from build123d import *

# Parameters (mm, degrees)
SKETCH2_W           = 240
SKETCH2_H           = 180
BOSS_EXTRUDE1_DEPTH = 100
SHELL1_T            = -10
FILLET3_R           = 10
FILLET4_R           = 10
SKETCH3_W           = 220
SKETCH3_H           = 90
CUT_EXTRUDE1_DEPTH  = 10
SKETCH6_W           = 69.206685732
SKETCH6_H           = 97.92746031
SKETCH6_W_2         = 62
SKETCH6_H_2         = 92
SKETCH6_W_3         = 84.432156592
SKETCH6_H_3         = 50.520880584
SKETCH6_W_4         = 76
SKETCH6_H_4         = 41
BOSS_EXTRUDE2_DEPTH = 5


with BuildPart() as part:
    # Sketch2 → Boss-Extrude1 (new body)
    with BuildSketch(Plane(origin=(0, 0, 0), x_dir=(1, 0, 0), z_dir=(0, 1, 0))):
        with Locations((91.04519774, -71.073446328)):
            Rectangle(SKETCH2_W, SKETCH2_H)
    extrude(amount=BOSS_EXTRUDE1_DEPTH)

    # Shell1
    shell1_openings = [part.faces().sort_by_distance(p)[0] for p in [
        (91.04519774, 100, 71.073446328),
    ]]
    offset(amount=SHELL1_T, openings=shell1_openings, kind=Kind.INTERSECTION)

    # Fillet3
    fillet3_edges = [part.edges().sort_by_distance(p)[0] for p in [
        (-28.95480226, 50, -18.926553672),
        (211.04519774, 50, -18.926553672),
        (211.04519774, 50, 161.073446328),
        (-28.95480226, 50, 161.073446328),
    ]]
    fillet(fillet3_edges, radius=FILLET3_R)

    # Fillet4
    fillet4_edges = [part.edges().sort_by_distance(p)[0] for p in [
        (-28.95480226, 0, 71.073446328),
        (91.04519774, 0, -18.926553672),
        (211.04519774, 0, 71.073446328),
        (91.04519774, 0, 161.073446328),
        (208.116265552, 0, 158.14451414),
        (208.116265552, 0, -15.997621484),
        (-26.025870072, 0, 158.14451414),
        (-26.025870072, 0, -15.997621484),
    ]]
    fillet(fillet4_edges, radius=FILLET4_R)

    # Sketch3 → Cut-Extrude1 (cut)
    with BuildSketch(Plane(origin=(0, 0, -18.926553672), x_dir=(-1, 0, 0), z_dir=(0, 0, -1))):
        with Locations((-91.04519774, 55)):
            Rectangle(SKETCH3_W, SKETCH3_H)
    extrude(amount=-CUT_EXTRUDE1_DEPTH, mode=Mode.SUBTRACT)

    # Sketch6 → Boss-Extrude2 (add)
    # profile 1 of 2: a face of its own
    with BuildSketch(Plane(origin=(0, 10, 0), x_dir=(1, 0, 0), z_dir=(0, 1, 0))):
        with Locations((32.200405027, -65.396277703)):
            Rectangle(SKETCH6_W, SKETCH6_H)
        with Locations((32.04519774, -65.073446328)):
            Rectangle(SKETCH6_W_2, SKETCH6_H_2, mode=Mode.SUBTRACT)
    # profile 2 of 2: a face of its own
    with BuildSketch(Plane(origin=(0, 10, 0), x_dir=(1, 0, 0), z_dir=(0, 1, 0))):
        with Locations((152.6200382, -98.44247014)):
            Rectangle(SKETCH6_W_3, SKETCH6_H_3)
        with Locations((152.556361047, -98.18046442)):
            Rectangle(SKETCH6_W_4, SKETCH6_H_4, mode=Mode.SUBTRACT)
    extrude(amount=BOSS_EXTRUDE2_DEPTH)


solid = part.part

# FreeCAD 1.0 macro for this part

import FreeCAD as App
import Part
import Sketcher
from FreeCAD import Vector
Q = App.Units.Quantity


def edges_at(feature, points):
    """Names of the edges that pass closest to the given points."""
    edges = feature.Shape.Edges
    near = lambda p: min(range(len(edges)), key=lambda i: edges[i].distToShape(Part.Vertex(*p))[0])
    return sorted({f"Edge{near(p) + 1}" for p in points})


def faces_at(feature, points):
    """Names of the faces that lie closest to the given points."""
    faces = feature.Shape.Faces
    near = lambda p: min(range(len(faces)), key=lambda i: faces[i].distToShape(Part.Vertex(*p))[0])
    return sorted({f"Face{near(p) + 1}" for p in points})

doc = App.newDocument("Part")
params = doc.addObject("Spreadsheet::Sheet", "Params")
for row, (alias, value) in enumerate([
    ("sketch1_width", "240 mm"),
    ("sketch1_height", "180 mm"),
    ("pad1_length", "100 mm"),
    ("thickness_wall", "10 mm"),
    ("fillet_radius", "10 mm"),
    ("fillet2_radius", "10 mm"),
    ("sketch2_width", "220 mm"),
    ("sketch2_height", "90 mm"),
    ("pocket1_length", "10 mm"),
    ("sketch3_width", "62 mm"),
    ("sketch3_width2", "76 mm"),
    ("sketch3_height", "92 mm"),
    ("sketch3_height2", "41 mm"),
    ("pad2_length", "5 mm"),
], start=1):
    params.set(f"A{row}", alias)
    params.set(f"B{row}", "=" + value)
    params.setAlias(f"B{row}", alias)

body = doc.addObject("PartDesign::Body", "Body")

sketch1 = body.newObject("Sketcher::SketchObject", "Sketch")
sketch1.AttachmentSupport = (doc.getObject("XZ_Plane"), [""])
sketch1.MapMode = "FlatFace"
sketch1.addGeometry(Part.LineSegment(Vector(-28.954802, -18.926554, 0), Vector(-28.954802, 161.073446, 0)), False)
sketch1.addGeometry(Part.LineSegment(Vector(-28.954802, 161.073446, 0), Vector(211.045198, 161.073446, 0)), False)
sketch1.addGeometry(Part.LineSegment(Vector(211.045198, 161.073446, 0), Vector(211.045198, -18.926554, 0)), False)
sketch1.addGeometry(Part.LineSegment(Vector(211.045198, -18.926554, 0), Vector(-28.954802, -18.926554, 0)), False)
sketch1.addConstraint(Sketcher.Constraint("Coincident", 0, 2, 1, 1))
sketch1.addConstraint(Sketcher.Constraint("Coincident", 1, 2, 2, 1))
sketch1.addConstraint(Sketcher.Constraint("Coincident", 2, 2, 3, 1))
sketch1.addConstraint(Sketcher.Constraint("Coincident", 3, 2, 0, 1))
sketch1.addConstraint(Sketcher.Constraint("Vertical", 0))
sketch1.addConstraint(Sketcher.Constraint("Horizontal", 1))
sketch1.addConstraint(Sketcher.Constraint("Vertical", 2))
sketch1.addConstraint(Sketcher.Constraint("Horizontal", 3))
sketch1.addConstraint(Sketcher.Constraint("DistanceX", 1, 1, 1, 2, Q("240 mm")))
sketch1.addConstraint(Sketcher.Constraint("DistanceY", 0, 1, 0, 2, Q("180 mm")))
sketch1.addConstraint(Sketcher.Constraint("DistanceX", 0, 2, -1, 1, Q("28.954802 mm")))
sketch1.addConstraint(Sketcher.Constraint("DistanceY", -1, 1, 0, 2, Q("161.073446 mm")))
sketch1.setExpression("Constraints[8]", "Params.sketch1_width")
sketch1.setExpression("Constraints[9]", "Params.sketch1_height")
pad1 = body.newObject("PartDesign::Pad", "Pad")
pad1.Profile = sketch1
pad1.setExpression("Length", "Params.pad1_length")
pad1.Reversed = True
doc.recompute()

thickness = body.newObject("PartDesign::Thickness", "Thickness")
thickness.Base = (pad1, faces_at(pad1, [(91.045, 100, 71.073)]))
thickness.setExpression("Value", "Params.thickness_wall")
thickness.Reversed = True
thickness.Join = "Intersection"
doc.recompute()

fillet = body.newObject("PartDesign::Fillet", "Fillet")
fillet.Base = (thickness, edges_at(thickness, [
    (-28.955, 50, -18.927),
    (211.045, 50, -18.927),
    (211.045, 50, 161.073),
    (-28.955, 50, 161.073),
]))
fillet.setExpression("Radius", "Params.fillet_radius")
doc.recompute()

fillet2 = body.newObject("PartDesign::Fillet", "Fillet001")
fillet2.Base = (fillet, edges_at(fillet, [
    (-28.955, 0, 71.073),
    (91.045, 0, -18.927),
    (211.045, 0, 71.073),
    (91.045, 0, 161.073),
    (208.116, 0, 158.145),
    (208.116, 0, -15.998),
    (-26.026, 0, 158.145),
    (-26.026, 0, -15.998),
]))
fillet2.setExpression("Radius", "Params.fillet2_radius")

sketch2 = body.newObject("Sketcher::SketchObject", "Sketch001")
sketch2.AttachmentSupport = (doc.getObject("XY_Plane"), [""])
sketch2.MapMode = "FlatFace"
sketch2.AttachmentOffset = App.Placement(Vector(0, 0, -18.926554), App.Rotation())
sketch2.addGeometry(Part.LineSegment(Vector(201.045198, 100, 0), Vector(201.045198, 10, 0)), False)
sketch2.addGeometry(Part.LineSegment(Vector(201.045198, 10, 0), Vector(-18.954802, 10, 0)), False)
sketch2.addGeometry(Part.LineSegment(Vector(-18.954802, 10, 0), Vector(-18.954802, 100, 0)), False)
sketch2.addGeometry(Part.LineSegment(Vector(-18.954802, 100, 0), Vector(201.045198, 100, 0)), False)
sketch2.addConstraint(Sketcher.Constraint("Coincident", 0, 2, 1, 1))
sketch2.addConstraint(Sketcher.Constraint("Coincident", 1, 2, 2, 1))
sketch2.addConstraint(Sketcher.Constraint("Coincident", 2, 2, 3, 1))
sketch2.addConstraint(Sketcher.Constraint("Coincident", 3, 2, 0, 1))
sketch2.addConstraint(Sketcher.Constraint("Vertical", 0))
sketch2.addConstraint(Sketcher.Constraint("Horizontal", 1))
sketch2.addConstraint(Sketcher.Constraint("Vertical", 2))
sketch2.addConstraint(Sketcher.Constraint("Horizontal", 3))
sketch2.addConstraint(Sketcher.Constraint("DistanceX", 1, 2, 1, 1, Q("220 mm")))
sketch2.addConstraint(Sketcher.Constraint("DistanceY", 0, 2, 0, 1, Q("90 mm")))
sketch2.addConstraint(Sketcher.Constraint("DistanceY", -1, 1, 0, 2, Q("10 mm")))
sketch2.addConstraint(Sketcher.Constraint("DistanceX", -1, 1, 0, 2, Q("201.045198 mm")))
sketch2.setExpression("Constraints[8]", "Params.sketch2_width")
sketch2.setExpression("Constraints[9]", "Params.sketch2_height")
pocket1 = body.newObject("PartDesign::Pocket", "Pocket")
pocket1.Profile = sketch2
pocket1.setExpression("Length", "Params.pocket1_length")
pocket1.Reversed = True

sketch3 = body.newObject("Sketcher::SketchObject", "Sketch002")
sketch3.AttachmentSupport = (doc.getObject("XZ_Plane"), [""])
sketch3.MapMode = "FlatFace"
sketch3.AttachmentOffset = App.Placement(Vector(0, 0, -10), App.Rotation())
sketch3.addGeometry(Part.LineSegment(Vector(-2.402938, 16.432548, 0), Vector(-2.402938, 114.360008, 0)), False)
sketch3.addGeometry(Part.LineSegment(Vector(-2.402938, 114.360008, 0), Vector(66.803748, 114.360008, 0)), False)
sketch3.addGeometry(Part.LineSegment(Vector(66.803748, 114.360008, 0), Vector(66.803748, 16.432548, 0)), False)
sketch3.addGeometry(Part.LineSegment(Vector(66.803748, 16.432548, 0), Vector(-2.402938, 16.432548, 0)), False)
sketch3.addGeometry(Part.LineSegment(Vector(63.045198, 111.073446, 0), Vector(1.045198, 111.073446, 0)), False)
sketch3.addGeometry(Part.LineSegment(Vector(1.045198, 111.073446, 0), Vector(1.045198, 19.073446, 0)), False)
sketch3.addGeometry(Part.LineSegment(Vector(1.045198, 19.073446, 0), Vector(63.045198, 19.073446, 0)), False)
sketch3.addGeometry(Part.LineSegment(Vector(63.045198, 19.073446, 0), Vector(63.045198, 111.073446, 0)), False)
sketch3.addGeometry(Part.LineSegment(Vector(110.40396, 73.18203, 0), Vector(110.40396, 123.70291, 0)), False)
sketch3.addGeometry(Part.LineSegment(Vector(110.40396, 123.70291, 0), Vector(194.836116, 123.70291, 0)), False)
sketch3.addGeometry(Part.LineSegment(Vector(194.836116, 123.70291, 0), Vector(194.836116, 73.18203, 0)), False)
sketch3.addGeometry(Part.LineSegment(Vector(194.836116, 73.18203, 0), Vector(110.40396, 73.18203, 0)), False)
sketch3.addGeometry(Part.LineSegment(Vector(190.556361, 118.680464, 0), Vector(114.556361, 118.680464, 0)), False)
sketch3.addGeometry(Part.LineSegment(Vector(114.556361, 118.680464, 0), Vector(114.556361, 77.680464, 0)), False)
sketch3.addGeometry(Part.LineSegment(Vector(114.556361, 77.680464, 0), Vector(190.556361, 77.680464, 0)), False)
sketch3.addGeometry(Part.LineSegment(Vector(190.556361, 77.680464, 0), Vector(190.556361, 118.680464, 0)), False)
sketch3.addConstraint(Sketcher.Constraint("Coincident", 0, 2, 1, 1))
sketch3.addConstraint(Sketcher.Constraint("Coincident", 1, 2, 2, 1))
sketch3.addConstraint(Sketcher.Constraint("Coincident", 2, 2, 3, 1))
sketch3.addConstraint(Sketcher.Constraint("Coincident", 3, 2, 0, 1))
sketch3.addConstraint(Sketcher.Constraint("Coincident", 4, 2, 5, 1))
sketch3.addConstraint(Sketcher.Constraint("Coincident", 5, 2, 6, 1))
sketch3.addConstraint(Sketcher.Constraint("Coincident", 6, 2, 7, 1))
sketch3.addConstraint(Sketcher.Constraint("Coincident", 7, 2, 4, 1))
sketch3.addConstraint(Sketcher.Constraint("Coincident", 8, 2, 9, 1))
sketch3.addConstraint(Sketcher.Constraint("Coincident", 9, 2, 10, 1))
sketch3.addConstraint(Sketcher.Constraint("Coincident", 10, 2, 11, 1))
sketch3.addConstraint(Sketcher.Constraint("Coincident", 11, 2, 8, 1))
sketch3.addConstraint(Sketcher.Constraint("Coincident", 12, 2, 13, 1))
sketch3.addConstraint(Sketcher.Constraint("Coincident", 13, 2, 14, 1))
sketch3.addConstraint(Sketcher.Constraint("Coincident", 14, 2, 15, 1))
sketch3.addConstraint(Sketcher.Constraint("Coincident", 15, 2, 12, 1))
sketch3.addConstraint(Sketcher.Constraint("Vertical", 0))
sketch3.addConstraint(Sketcher.Constraint("Horizontal", 1))
sketch3.addConstraint(Sketcher.Constraint("Vertical", 2))
sketch3.addConstraint(Sketcher.Constraint("Horizontal", 3))
sketch3.addConstraint(Sketcher.Constraint("Horizontal", 4))
sketch3.addConstraint(Sketcher.Constraint("Vertical", 5))
sketch3.addConstraint(Sketcher.Constraint("Horizontal", 6))
sketch3.addConstraint(Sketcher.Constraint("Vertical", 7))
sketch3.addConstraint(Sketcher.Constraint("Vertical", 8))
sketch3.addConstraint(Sketcher.Constraint("Horizontal", 9))
sketch3.addConstraint(Sketcher.Constraint("Vertical", 10))
sketch3.addConstraint(Sketcher.Constraint("Horizontal", 11))
sketch3.addConstraint(Sketcher.Constraint("Horizontal", 12))
sketch3.addConstraint(Sketcher.Constraint("Vertical", 13))
sketch3.addConstraint(Sketcher.Constraint("Horizontal", 14))
sketch3.addConstraint(Sketcher.Constraint("Vertical", 15))
sketch3.addConstraint(Sketcher.Constraint("DistanceX", 4, 2, 4, 1, Q("62 mm")))
sketch3.addConstraint(Sketcher.Constraint("DistanceX", 12, 2, 12, 1, Q("76 mm")))
sketch3.addConstraint(Sketcher.Constraint("DistanceY", 5, 2, 5, 1, Q("92 mm")))
sketch3.addConstraint(Sketcher.Constraint("DistanceY", 13, 2, 13, 1, Q("41 mm")))
sketch3.addConstraint(Sketcher.Constraint("DistanceY", 0, 1, 0, 2, Q("97.92746 mm")))
sketch3.addConstraint(Sketcher.Constraint("DistanceY", 8, 1, 8, 2, Q("50.520881 mm")))
sketch3.addConstraint(Sketcher.Constraint("DistanceY", 3, 2, 4, 2, Q("94.640899 mm")))
sketch3.addConstraint(Sketcher.Constraint("DistanceX", 8, 2, 12, 2, Q("4.152401 mm")))
sketch3.addConstraint(Sketcher.Constraint("DistanceX", 1, 1, 1, 2, Q("69.206686 mm")))
sketch3.addConstraint(Sketcher.Constraint("DistanceX", 9, 1, 9, 2, Q("84.432157 mm")))
sketch3.addConstraint(Sketcher.Constraint("DistanceX", -1, 1, 8, 2, Q("110.40396 mm")))
sketch3.addConstraint(Sketcher.Constraint("DistanceY", -1, 1, 8, 2, Q("123.70291 mm")))
sketch3.addConstraint(Sketcher.Constraint("DistanceX", 4, 2, 1, 2, Q("65.75855 mm")))
sketch3.addConstraint(Sketcher.Constraint("DistanceX", 1, 2, 9, 2, Q("128.032369 mm")))
sketch3.addConstraint(Sketcher.Constraint("DistanceY", 10, 2, 1, 2, Q("41.177978 mm")))
sketch3.addConstraint(Sketcher.Constraint("DistanceY", 7, 2, 12, 2, Q("7.607018 mm")))
sketch3.setExpression("Constraints[32]", "Params.sketch3_width")
sketch3.setExpression("Constraints[33]", "Params.sketch3_width2")
sketch3.setExpression("Constraints[34]", "Params.sketch3_height")
sketch3.setExpression("Constraints[35]", "Params.sketch3_height2")
pad2 = body.newObject("PartDesign::Pad", "Pad001")
pad2.Profile = sketch3
pad2.setExpression("Length", "Params.pad2_length")
pad2.Reversed = True

doc.recompute()
